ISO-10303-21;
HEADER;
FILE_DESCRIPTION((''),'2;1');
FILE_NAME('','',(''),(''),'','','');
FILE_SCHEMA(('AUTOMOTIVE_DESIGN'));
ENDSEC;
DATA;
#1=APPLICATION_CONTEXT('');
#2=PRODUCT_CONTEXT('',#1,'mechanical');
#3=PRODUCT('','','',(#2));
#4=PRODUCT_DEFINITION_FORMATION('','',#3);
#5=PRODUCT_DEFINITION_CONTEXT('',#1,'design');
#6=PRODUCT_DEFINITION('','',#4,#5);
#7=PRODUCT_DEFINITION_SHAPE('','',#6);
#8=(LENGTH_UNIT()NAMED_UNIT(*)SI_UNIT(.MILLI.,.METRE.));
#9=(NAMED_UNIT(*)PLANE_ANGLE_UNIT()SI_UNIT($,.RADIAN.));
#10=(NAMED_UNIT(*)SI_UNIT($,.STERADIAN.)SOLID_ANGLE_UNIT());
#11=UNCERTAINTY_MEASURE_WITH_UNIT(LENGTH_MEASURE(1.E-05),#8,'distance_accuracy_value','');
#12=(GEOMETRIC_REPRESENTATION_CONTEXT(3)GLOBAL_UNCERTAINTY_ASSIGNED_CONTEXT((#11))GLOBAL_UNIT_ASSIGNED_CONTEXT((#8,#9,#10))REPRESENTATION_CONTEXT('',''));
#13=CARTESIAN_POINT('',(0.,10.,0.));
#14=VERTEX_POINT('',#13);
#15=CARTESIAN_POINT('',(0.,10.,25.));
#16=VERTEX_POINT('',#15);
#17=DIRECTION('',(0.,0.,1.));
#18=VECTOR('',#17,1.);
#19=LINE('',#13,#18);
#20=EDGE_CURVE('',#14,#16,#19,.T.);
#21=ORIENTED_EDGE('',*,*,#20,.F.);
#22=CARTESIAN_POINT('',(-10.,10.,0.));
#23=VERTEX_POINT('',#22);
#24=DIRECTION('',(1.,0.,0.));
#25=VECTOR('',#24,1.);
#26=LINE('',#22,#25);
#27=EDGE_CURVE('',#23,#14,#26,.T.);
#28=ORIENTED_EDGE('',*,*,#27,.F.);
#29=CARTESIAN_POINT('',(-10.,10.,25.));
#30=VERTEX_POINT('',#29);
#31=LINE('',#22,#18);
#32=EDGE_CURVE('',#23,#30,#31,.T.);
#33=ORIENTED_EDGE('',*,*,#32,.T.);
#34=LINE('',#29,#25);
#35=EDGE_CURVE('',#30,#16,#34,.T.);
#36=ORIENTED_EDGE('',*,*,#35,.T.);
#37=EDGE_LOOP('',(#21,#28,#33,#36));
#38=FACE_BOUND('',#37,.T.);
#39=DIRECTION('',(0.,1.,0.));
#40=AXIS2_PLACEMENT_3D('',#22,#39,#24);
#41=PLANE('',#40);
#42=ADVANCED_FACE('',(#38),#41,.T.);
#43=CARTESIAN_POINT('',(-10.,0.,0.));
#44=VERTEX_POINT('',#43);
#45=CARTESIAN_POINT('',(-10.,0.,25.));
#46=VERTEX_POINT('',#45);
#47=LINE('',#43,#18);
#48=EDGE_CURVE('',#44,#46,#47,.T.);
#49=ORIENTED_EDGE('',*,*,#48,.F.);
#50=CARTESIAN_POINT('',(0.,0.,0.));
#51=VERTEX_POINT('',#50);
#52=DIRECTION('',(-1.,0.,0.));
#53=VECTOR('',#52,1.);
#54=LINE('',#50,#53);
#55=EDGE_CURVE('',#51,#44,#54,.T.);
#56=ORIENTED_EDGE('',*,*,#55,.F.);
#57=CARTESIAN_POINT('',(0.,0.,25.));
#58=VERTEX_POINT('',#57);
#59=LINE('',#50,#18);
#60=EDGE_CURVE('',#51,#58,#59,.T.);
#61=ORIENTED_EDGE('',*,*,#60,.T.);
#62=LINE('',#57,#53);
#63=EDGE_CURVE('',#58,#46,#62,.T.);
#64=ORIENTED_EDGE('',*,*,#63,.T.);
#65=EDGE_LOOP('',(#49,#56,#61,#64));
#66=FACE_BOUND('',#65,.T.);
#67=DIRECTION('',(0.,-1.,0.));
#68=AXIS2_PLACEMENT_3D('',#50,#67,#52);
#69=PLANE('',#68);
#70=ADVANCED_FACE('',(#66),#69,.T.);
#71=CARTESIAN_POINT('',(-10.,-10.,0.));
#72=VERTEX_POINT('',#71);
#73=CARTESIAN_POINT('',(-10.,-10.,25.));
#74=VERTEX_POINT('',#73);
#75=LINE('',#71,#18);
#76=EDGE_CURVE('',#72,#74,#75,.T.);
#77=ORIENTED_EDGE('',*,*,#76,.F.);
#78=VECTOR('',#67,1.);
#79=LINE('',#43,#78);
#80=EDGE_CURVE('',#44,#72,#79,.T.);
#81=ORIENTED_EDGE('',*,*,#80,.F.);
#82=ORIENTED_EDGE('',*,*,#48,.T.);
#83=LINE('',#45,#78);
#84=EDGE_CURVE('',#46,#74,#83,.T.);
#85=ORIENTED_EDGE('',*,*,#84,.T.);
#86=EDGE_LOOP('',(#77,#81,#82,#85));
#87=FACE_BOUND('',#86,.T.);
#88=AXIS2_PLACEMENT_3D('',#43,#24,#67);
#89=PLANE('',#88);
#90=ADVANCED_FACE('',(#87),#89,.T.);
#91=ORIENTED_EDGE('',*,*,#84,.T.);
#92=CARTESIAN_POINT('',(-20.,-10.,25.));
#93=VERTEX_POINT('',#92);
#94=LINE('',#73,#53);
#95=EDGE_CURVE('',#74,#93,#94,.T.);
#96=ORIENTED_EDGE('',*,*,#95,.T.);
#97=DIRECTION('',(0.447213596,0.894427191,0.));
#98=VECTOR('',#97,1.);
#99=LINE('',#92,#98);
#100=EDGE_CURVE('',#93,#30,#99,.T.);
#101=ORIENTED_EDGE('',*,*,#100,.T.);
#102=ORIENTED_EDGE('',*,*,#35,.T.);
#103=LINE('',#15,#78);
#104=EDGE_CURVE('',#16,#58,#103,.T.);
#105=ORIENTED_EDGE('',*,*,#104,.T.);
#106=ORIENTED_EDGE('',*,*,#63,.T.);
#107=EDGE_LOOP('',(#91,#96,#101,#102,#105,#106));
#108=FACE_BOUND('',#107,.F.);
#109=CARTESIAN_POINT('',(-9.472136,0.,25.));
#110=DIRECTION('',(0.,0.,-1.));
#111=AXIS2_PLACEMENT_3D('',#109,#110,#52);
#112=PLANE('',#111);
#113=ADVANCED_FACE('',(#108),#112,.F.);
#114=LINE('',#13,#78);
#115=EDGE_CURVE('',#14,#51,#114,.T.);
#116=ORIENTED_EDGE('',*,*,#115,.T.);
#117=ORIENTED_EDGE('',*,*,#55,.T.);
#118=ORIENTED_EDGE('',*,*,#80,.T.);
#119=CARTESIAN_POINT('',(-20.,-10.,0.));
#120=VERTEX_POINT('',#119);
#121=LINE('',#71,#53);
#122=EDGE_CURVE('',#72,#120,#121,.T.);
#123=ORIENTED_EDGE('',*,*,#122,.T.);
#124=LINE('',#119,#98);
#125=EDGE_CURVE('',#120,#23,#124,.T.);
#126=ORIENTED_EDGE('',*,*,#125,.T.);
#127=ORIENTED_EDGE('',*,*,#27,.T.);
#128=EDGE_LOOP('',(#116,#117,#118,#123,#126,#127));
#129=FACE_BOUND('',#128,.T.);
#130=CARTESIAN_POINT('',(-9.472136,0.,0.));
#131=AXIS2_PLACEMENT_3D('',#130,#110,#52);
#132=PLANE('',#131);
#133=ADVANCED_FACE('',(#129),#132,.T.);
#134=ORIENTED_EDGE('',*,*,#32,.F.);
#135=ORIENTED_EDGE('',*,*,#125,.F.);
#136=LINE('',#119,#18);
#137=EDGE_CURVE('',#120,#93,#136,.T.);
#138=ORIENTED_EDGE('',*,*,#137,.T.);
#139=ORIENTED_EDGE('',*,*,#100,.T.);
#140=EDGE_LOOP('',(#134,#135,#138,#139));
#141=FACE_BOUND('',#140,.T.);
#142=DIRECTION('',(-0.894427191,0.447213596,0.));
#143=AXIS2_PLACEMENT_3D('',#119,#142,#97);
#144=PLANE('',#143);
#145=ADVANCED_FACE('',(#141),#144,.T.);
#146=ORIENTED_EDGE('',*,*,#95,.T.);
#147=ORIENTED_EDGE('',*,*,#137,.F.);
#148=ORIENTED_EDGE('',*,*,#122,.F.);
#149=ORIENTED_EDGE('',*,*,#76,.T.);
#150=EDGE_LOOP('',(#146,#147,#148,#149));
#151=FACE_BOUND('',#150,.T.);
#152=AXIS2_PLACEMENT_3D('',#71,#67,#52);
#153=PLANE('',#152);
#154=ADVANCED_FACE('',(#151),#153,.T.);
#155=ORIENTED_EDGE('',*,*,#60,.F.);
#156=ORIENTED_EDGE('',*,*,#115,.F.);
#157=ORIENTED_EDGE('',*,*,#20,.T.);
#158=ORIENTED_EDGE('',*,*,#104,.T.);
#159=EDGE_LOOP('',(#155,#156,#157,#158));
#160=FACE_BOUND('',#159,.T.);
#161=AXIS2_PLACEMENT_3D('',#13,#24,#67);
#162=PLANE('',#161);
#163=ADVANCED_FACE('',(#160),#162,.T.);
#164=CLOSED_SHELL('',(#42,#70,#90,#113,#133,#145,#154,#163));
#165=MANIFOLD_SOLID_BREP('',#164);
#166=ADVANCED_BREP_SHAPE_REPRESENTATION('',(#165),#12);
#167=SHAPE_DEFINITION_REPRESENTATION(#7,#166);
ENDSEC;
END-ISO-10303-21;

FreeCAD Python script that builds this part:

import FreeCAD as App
import Part
import Sketcher

V = App.Vector
Q = App.Units.Quantity

doc = App.newDocument("Part")
body = doc.addObject("PartDesign::Body", "Body")

# Sketch on XY plane
sketch1 = body.newObject("Sketcher::SketchObject", "Sketch")
sketch1.AttachmentSupport = (doc.getObject("XY_Plane"), [""])
sketch1.MapMode = "FlatFace"
sketch1.addGeometry([
    Part.LineSegment(V(-10, 10, 0), V(-20, -10, 0)),  # 0
    Part.LineSegment(V(-20, -10, 0), V(-10, -10, 0)),  # 1
    Part.LineSegment(V(-10, -10, 0), V(-10, 0, 0)),  # 2
    Part.LineSegment(V(-10, 0, 0), V(0, 0, 0)),  # 3
    Part.LineSegment(V(0, 0, 0), V(0, 10, 0)),  # 4
    Part.LineSegment(V(0, 10, 0), V(-10, 10, 0)),  # 5
], False)
sketch1.addConstraint([
    Sketcher.Constraint("Coincident", 0, 2, 1, 1),
    Sketcher.Constraint("Coincident", 1, 2, 2, 1),
    Sketcher.Constraint("Coincident", 2, 2, 3, 1),
    Sketcher.Constraint("Coincident", 3, 2, 4, 1),
    Sketcher.Constraint("Coincident", 4, 2, 5, 1),
    Sketcher.Constraint("Coincident", 5, 2, 0, 1),
    Sketcher.Constraint("Horizontal", 1),
    Sketcher.Constraint("Vertical", 2),
    Sketcher.Constraint("Horizontal", 3),
    Sketcher.Constraint("Vertical", 4),
    Sketcher.Constraint("Horizontal", 5),
    Sketcher.Constraint("Coincident", 3, 2, -1, 1),
    Sketcher.Constraint("Symmetric", 1, 2, 5, 2, -1),
    Sketcher.Constraint("Equal", 1, 3),
    Sketcher.Constraint("Equal", 5, 2),
    Sketcher.Constraint("DistanceX", 1, 1, 1, 2, Q("10 mm")),
])
pad1 = body.newObject("PartDesign::Pad", "Pad")
pad1.Profile = sketch1
pad1.Length = 25

doc.recompute()
